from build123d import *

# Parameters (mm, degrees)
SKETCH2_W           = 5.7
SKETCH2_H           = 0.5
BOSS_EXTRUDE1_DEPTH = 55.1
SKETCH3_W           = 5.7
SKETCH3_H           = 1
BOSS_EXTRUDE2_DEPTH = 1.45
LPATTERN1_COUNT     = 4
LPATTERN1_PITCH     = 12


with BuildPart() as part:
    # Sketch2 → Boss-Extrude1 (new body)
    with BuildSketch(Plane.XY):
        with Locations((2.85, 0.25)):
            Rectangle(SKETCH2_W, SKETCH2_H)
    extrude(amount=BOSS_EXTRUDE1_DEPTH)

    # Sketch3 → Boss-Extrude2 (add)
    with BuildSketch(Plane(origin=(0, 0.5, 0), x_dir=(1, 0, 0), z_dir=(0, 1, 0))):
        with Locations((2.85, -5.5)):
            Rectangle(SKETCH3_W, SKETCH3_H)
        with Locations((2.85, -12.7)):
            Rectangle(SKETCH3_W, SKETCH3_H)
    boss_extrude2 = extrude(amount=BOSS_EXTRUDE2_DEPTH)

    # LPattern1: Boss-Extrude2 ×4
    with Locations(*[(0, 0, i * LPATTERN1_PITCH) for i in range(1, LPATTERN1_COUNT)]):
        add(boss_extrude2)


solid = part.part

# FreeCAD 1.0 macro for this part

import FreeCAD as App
import Part
import Sketcher


def add_polygon(sketch, points):
    """Adds a closed chain of lines whose ends are joined by coincident constraints."""
    first, n = sketch.GeometryCount, len(points)
    for a, b in zip(points, points[1:] + points[:1]):
        sketch.addGeometry(Part.LineSegment(App.Vector(*a, 0), App.Vector(*b, 0)), False)
    for i in range(n):
        sketch.addConstraint(Sketcher.Constraint("Coincident", first + i, 2, first + (i + 1) % n, 1))

doc = App.newDocument("Part")
body = doc.addObject("PartDesign::Body", "Body")

sketch1 = body.newObject("Sketcher::SketchObject", "Sketch")
sketch1.AttachmentSupport = (doc.getObject("XY_Plane"), [""])
sketch1.MapMode = "FlatFace"
add_polygon(sketch1, [(0, 0.5), (0, 0), (5.7, 0), (5.7, 0.5)])
sketch1.addConstraint([
    Sketcher.Constraint("Vertical", 0),
    Sketcher.Constraint("Horizontal", 1),
    Sketcher.Constraint("Vertical", 2),
    Sketcher.Constraint("Horizontal", 3),
    Sketcher.Constraint("Coincident", 0, 2, -1, 1),
    Sketcher.Constraint("DistanceX", 1, 1, 1, 2, 5.7),
    Sketcher.Constraint("DistanceY", 0, 2, 0, 1, 0.5),
])
pad1 = body.newObject("PartDesign::Pad", "Pad")
pad1.Profile = sketch1
pad1.Length = 55.1

sketch2 = body.newObject("Sketcher::SketchObject", "Sketch001")
sketch2.AttachmentSupport = (doc.getObject("XZ_Plane"), [""])
sketch2.MapMode = "FlatFace"
sketch2.AttachmentOffset = App.Placement(App.Vector(0, 0, -0.5), App.Rotation())
add_polygon(sketch2, [(0, 5), (0, 6), (5.7, 6), (5.7, 5)])
add_polygon(sketch2, [(0, 12.2), (0, 13.2), (5.7, 13.2), (5.7, 12.2)])
sketch2.addConstraint([
    Sketcher.Constraint("Vertical", 0),
    Sketcher.Constraint("Horizontal", 1),
    Sketcher.Constraint("Vertical", 2),
    Sketcher.Constraint("Horizontal", 3),
    Sketcher.Constraint("Vertical", 4),
    Sketcher.Constraint("Horizontal", 5),
    Sketcher.Constraint("Vertical", 6),
    Sketcher.Constraint("Horizontal", 7),
    Sketcher.Constraint("PointOnObject", 0, 2, -2),
    Sketcher.Constraint("PointOnObject", 4, 2, -2),
    Sketcher.Constraint("Vertical", 2, 2, 5, 2),
    Sketcher.Constraint("Equal", 2, 4),
    Sketcher.Constraint("DistanceY", 0, 1, 0, 2, 1.0),
    Sketcher.Constraint("DistanceX", 1, 1, 1, 2, 5.7),
    Sketcher.Constraint("DistanceY", -1, 1, 0, 2, 6.0),
    Sketcher.Constraint("DistanceY", -1, 1, 4, 2, 13.2),
])
pad2 = body.newObject("PartDesign::Pad", "Pad001")
pad2.Profile = sketch2
pad2.Length = 1.45
pad2.Reversed = True
doc.recompute()

linearpattern = body.newObject("PartDesign::LinearPattern", "LinearPattern")
linearpattern.Originals = [pad2]
linearpattern.Direction = (doc.getObject("Z_Axis"), [""])
linearpattern.Mode = "offset"
linearpattern.Offset = 12
linearpattern.Occurrences = 4
body.Tip = linearpattern

doc.recompute()
